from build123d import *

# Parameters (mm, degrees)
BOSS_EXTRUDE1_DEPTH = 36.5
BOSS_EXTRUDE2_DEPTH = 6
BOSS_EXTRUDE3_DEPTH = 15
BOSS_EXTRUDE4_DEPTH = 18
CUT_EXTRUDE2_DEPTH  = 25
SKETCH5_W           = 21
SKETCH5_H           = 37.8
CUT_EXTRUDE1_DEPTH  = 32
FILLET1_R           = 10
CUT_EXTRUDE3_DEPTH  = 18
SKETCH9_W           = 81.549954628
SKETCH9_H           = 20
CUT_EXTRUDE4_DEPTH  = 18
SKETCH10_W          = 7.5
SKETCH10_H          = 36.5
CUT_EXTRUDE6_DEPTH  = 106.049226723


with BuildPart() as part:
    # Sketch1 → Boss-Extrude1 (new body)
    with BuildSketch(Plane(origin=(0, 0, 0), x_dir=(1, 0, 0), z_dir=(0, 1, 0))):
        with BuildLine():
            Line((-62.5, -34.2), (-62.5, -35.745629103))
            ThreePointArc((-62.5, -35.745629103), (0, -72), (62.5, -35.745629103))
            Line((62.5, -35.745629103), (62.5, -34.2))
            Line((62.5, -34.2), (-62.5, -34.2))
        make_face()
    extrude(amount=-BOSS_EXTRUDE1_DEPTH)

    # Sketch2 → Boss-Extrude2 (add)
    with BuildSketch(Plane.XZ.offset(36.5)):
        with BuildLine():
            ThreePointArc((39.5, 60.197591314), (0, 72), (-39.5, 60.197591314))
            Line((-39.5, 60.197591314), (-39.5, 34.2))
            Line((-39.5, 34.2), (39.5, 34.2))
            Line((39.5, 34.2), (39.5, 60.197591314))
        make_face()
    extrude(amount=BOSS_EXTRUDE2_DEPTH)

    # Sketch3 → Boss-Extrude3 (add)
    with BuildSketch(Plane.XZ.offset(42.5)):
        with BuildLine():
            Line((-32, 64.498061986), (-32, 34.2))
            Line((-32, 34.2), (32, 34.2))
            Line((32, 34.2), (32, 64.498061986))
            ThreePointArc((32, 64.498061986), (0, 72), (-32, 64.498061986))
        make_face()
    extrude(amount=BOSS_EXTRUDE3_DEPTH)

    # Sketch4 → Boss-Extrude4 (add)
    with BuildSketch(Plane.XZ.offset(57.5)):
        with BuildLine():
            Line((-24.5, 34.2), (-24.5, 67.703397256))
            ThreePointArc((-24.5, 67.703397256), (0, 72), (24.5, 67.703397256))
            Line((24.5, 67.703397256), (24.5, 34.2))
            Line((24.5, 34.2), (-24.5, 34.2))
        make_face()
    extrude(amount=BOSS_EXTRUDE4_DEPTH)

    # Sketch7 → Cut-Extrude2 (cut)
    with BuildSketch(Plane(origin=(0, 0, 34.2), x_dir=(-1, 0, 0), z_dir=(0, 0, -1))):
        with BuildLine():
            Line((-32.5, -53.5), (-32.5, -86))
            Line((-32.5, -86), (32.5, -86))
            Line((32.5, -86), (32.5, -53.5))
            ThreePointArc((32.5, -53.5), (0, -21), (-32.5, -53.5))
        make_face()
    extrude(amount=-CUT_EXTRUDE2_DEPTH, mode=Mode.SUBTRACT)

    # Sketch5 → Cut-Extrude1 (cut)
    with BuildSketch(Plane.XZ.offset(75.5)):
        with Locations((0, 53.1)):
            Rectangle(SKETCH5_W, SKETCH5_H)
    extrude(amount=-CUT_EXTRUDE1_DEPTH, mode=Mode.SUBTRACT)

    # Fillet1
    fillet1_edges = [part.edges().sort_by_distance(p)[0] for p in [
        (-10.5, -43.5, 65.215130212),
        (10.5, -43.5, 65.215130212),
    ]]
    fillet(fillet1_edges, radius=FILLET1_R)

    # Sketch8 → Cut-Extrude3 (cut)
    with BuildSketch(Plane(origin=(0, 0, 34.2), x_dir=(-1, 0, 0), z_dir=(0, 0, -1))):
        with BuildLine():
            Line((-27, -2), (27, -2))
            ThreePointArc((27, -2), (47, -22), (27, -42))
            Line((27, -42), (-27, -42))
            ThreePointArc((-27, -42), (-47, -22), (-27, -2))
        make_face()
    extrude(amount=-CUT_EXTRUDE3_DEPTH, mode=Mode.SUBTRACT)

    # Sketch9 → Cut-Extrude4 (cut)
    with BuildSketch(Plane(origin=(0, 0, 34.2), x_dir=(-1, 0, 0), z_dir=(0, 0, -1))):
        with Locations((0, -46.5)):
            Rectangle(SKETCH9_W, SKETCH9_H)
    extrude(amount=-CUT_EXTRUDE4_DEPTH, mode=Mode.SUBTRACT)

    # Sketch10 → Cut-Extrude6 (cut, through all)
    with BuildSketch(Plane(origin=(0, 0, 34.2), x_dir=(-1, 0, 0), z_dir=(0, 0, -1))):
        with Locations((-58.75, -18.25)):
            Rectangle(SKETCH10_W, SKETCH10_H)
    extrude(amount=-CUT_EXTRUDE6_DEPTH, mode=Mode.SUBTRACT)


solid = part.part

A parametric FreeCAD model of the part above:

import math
import FreeCAD as App
import Part
import Sketcher


def edges_at(feature, points):
    """Names of the edges that pass closest to the given points."""
    edges = feature.Shape.Edges
    near = lambda p: min(range(len(edges)), key=lambda i: edges[i].distToShape(Part.Vertex(*p))[0])
    return sorted({f"Edge{near(p) + 1}" for p in points})


def add_polygon(sketch, points):
    """Adds a closed chain of lines whose ends are joined by coincident constraints."""
    first, n = sketch.GeometryCount, len(points)
    for a, b in zip(points, points[1:] + points[:1]):
        sketch.addGeometry(Part.LineSegment(App.Vector(*a, 0), App.Vector(*b, 0)), False)
    for i in range(n):
        sketch.addConstraint(Sketcher.Constraint("Coincident", first + i, 2, first + (i + 1) % n, 1))

doc = App.newDocument("Part")
params = doc.addObject("Spreadsheet::Sheet", "Params")
for row, (alias, value) in enumerate([
    ("sketch1_radius", "72 mm"),
    ("sketch1_width", "125 mm"),
    ("pad1_length", "36.5 mm"),
    ("sketch2_radius", "72 mm"),
    ("sketch2_width", "79 mm"),
    ("pad2_length", "6 mm"),
    ("sketch3_radius", "72 mm"),
    ("sketch3_width", "64 mm"),
    ("pad3_length", "15 mm"),
    ("sketch4_radius", "72 mm"),
    ("sketch4_width", "49 mm"),
    ("pad4_length", "18 mm"),
    ("sketch5_radius", "32.5 mm"),
    ("sketch5_height", "32.5 mm"),
    ("pocket1_length", "25 mm"),
    ("sketch6_width", "21 mm"),
    ("sketch6_height", "37.8 mm"),
    ("pocket2_length", "32 mm"),
    ("fillet_radius", "10 mm"),
    ("sketch7_radius", "20 mm"),
    ("sketch7_width", "54 mm"),
    ("pocket3_length", "18 mm"),
    ("sketch8_height", "20 mm"),
    ("pocket4_length", "18 mm"),
    ("sketch9_width", "7.5 mm"),
    ("sketch9_height", "36.5 mm"),
], start=1):
    params.set(f"A{row}", alias)
    params.set(f"B{row}", "=" + value)
    params.setAlias(f"B{row}", alias)

body = doc.addObject("PartDesign::Body", "Body")

# Sketch on XZ plane
sketch1 = body.newObject("Sketcher::SketchObject", "Sketch")
sketch1.AttachmentSupport = (doc.getObject("XZ_Plane"), [""])
sketch1.MapMode = "FlatFace"
sketch1.addGeometry(Part.LineSegment(App.Vector(-62.5, 34.2, 0), App.Vector(-62.5, 35.7, 0)), False)
sketch1.addGeometry(Part.ArcOfCircle(Part.Circle(App.Vector(0, 0, 0), App.Vector(0, 0, 1), 72), math.radians(30), math.radians(150)), False)
sketch1.addGeometry(Part.LineSegment(App.Vector(62.5, 35.7, 0), App.Vector(62.5, 34.2, 0)), False)
sketch1.addGeometry(Part.LineSegment(App.Vector(62.5, 34.2, 0), App.Vector(-62.5, 34.2, 0)), False)
sketch1.addConstraint(Sketcher.Constraint("Coincident", 0, 2, 1, 2))
sketch1.addConstraint(Sketcher.Constraint("Coincident", 1, 1, 2, 1))
sketch1.addConstraint(Sketcher.Constraint("Coincident", 2, 2, 3, 1))
sketch1.addConstraint(Sketcher.Constraint("Coincident", 3, 2, 0, 1))
sketch1.addConstraint(Sketcher.Constraint("Vertical", 0))
sketch1.addConstraint(Sketcher.Constraint("Vertical", 2))
sketch1.addConstraint(Sketcher.Constraint("Horizontal", 3))
sketch1.addConstraint(Sketcher.Constraint("Coincident", 1, 3, -1, 1))
sketch1.addConstraint(Sketcher.Constraint("Horizontal", 0, 2, 1, 1))
sketch1.addConstraint(Sketcher.Constraint("Radius", 1, 72.0))
sketch1.addConstraint(Sketcher.Constraint("DistanceX", 3, 2, 3, 1, 125.0))
sketch1.addConstraint(Sketcher.Constraint("DistanceY", -1, 1, 2, 2, 34.2))
sketch1.setExpression("Constraints[9]", "Params.sketch1_radius")
sketch1.setExpression("Constraints[10]", "Params.sketch1_width")
pad1 = body.newObject("PartDesign::Pad", "Pad")
pad1.Profile = sketch1
pad1.setExpression("Length", "Params.pad1_length")

# Sketch on XZ plane
sketch2 = body.newObject("Sketcher::SketchObject", "Sketch001")
sketch2.AttachmentSupport = (doc.getObject("XZ_Plane"), [""])
sketch2.MapMode = "FlatFace"
sketch2.AttachmentOffset = App.Placement(App.Vector(0, 0, 36.5), App.Rotation())
sketch2.addGeometry(Part.ArcOfCircle(Part.Circle(App.Vector(0, 0, 0), App.Vector(0, 0, 1), 72), math.radians(57), math.radians(123)), False)
sketch2.addGeometry(Part.LineSegment(App.Vector(-40, 60, 0), App.Vector(-40, 34, 0)), False)
sketch2.addGeometry(Part.LineSegment(App.Vector(-40, 34, 0), App.Vector(40, 34, 0)), False)
sketch2.addGeometry(Part.LineSegment(App.Vector(40, 34, 0), App.Vector(40, 60, 0)), False)
sketch2.addConstraint(Sketcher.Constraint("Coincident", 0, 2, 1, 1))
sketch2.addConstraint(Sketcher.Constraint("Coincident", 1, 2, 2, 1))
sketch2.addConstraint(Sketcher.Constraint("Coincident", 2, 2, 3, 1))
sketch2.addConstraint(Sketcher.Constraint("Coincident", 3, 2, 0, 1))
sketch2.addConstraint(Sketcher.Constraint("Vertical", 1))
sketch2.addConstraint(Sketcher.Constraint("Horizontal", 2))
sketch2.addConstraint(Sketcher.Constraint("Vertical", 3))
sketch2.addConstraint(Sketcher.Constraint("Coincident", 0, 3, -1, 1))
sketch2.addConstraint(Sketcher.Constraint("Horizontal", 0, 2, 3, 2))
sketch2.addConstraint(Sketcher.Constraint("Radius", 0, 72.0))
sketch2.addConstraint(Sketcher.Constraint("DistanceX", 2, 1, 2, 2, 79.0))
sketch2.addConstraint(Sketcher.Constraint("DistanceY", -1, 1, 1, 2, 34.2))
sketch2.setExpression("Constraints[9]", "Params.sketch2_radius")
sketch2.setExpression("Constraints[10]", "Params.sketch2_width")
pad2 = body.newObject("PartDesign::Pad", "Pad001")
pad2.Profile = sketch2
pad2.setExpression("Length", "Params.pad2_length")

# Sketch on XZ plane
sketch3 = body.newObject("Sketcher::SketchObject", "Sketch002")
sketch3.AttachmentSupport = (doc.getObject("XZ_Plane"), [""])
sketch3.MapMode = "FlatFace"
sketch3.AttachmentOffset = App.Placement(App.Vector(0, 0, 42.5), App.Rotation())
sketch3.addGeometry(Part.LineSegment(App.Vector(-32, 64, 0), App.Vector(-32, 34, 0)), False)
sketch3.addGeometry(Part.LineSegment(App.Vector(-32, 34, 0), App.Vector(32, 34, 0)), False)
sketch3.addGeometry(Part.LineSegment(App.Vector(32, 34, 0), App.Vector(32, 64, 0)), False)
sketch3.addGeometry(Part.ArcOfCircle(Part.Circle(App.Vector(0, 0, 0), App.Vector(0, 0, 1), 72), math.radians(64), math.radians(116)), False)
sketch3.addConstraint(Sketcher.Constraint("Coincident", 0, 2, 1, 1))
sketch3.addConstraint(Sketcher.Constraint("Coincident", 1, 2, 2, 1))
sketch3.addConstraint(Sketcher.Constraint("Coincident", 2, 2, 3, 1))
sketch3.addConstraint(Sketcher.Constraint("Coincident", 3, 2, 0, 1))
sketch3.addConstraint(Sketcher.Constraint("Vertical", 0))
sketch3.addConstraint(Sketcher.Constraint("Horizontal", 1))
sketch3.addConstraint(Sketcher.Constraint("Vertical", 2))
sketch3.addConstraint(Sketcher.Constraint("Coincident", 3, 3, -1, 1))
sketch3.addConstraint(Sketcher.Constraint("Horizontal", 2, 2, 3, 2))
sketch3.addConstraint(Sketcher.Constraint("Radius", 3, 72.0))
sketch3.addConstraint(Sketcher.Constraint("DistanceX", 1, 1, 1, 2, 64.0))
sketch3.addConstraint(Sketcher.Constraint("DistanceY", -1, 1, 0, 2, 34.2))
sketch3.setExpression("Constraints[9]", "Params.sketch3_radius")
sketch3.setExpression("Constraints[10]", "Params.sketch3_width")
pad3 = body.newObject("PartDesign::Pad", "Pad002")
pad3.Profile = sketch3
pad3.setExpression("Length", "Params.pad3_length")

# Sketch on XZ plane
sketch4 = body.newObject("Sketcher::SketchObject", "Sketch003")
sketch4.AttachmentSupport = (doc.getObject("XZ_Plane"), [""])
sketch4.MapMode = "FlatFace"
sketch4.AttachmentOffset = App.Placement(App.Vector(0, 0, 57.5), App.Rotation())
sketch4.addGeometry(Part.LineSegment(App.Vector(-24, 68, 0), App.Vector(-24, 34, 0)), False)
sketch4.addGeometry(Part.LineSegment(App.Vector(-24, 34, 0), App.Vector(24, 34, 0)), False)
sketch4.addGeometry(Part.LineSegment(App.Vector(24, 34, 0), App.Vector(24, 68, 0)), False)
sketch4.addGeometry(Part.ArcOfCircle(Part.Circle(App.Vector(0, 0, 0), App.Vector(0, 0, 1), 72), math.radians(70), math.radians(110)), False)
sketch4.addConstraint(Sketcher.Constraint("Coincident", 0, 2, 1, 1))
sketch4.addConstraint(Sketcher.Constraint("Coincident", 1, 2, 2, 1))
sketch4.addConstraint(Sketcher.Constraint("Coincident", 2, 2, 3, 1))
sketch4.addConstraint(Sketcher.Constraint("Coincident", 3, 2, 0, 1))
sketch4.addConstraint(Sketcher.Constraint("Vertical", 0))
sketch4.addConstraint(Sketcher.Constraint("Horizontal", 1))
sketch4.addConstraint(Sketcher.Constraint("Vertical", 2))
sketch4.addConstraint(Sketcher.Constraint("Coincident", 3, 3, -1, 1))
sketch4.addConstraint(Sketcher.Constraint("Horizontal", 2, 2, 3, 2))
sketch4.addConstraint(Sketcher.Constraint("Radius", 3, 72.0))
sketch4.addConstraint(Sketcher.Constraint("DistanceX", 1, 1, 1, 2, 49.0))
sketch4.addConstraint(Sketcher.Constraint("DistanceY", -1, 1, 0, 2, 34.2))
sketch4.setExpression("Constraints[9]", "Params.sketch4_radius")
sketch4.setExpression("Constraints[10]", "Params.sketch4_width")
pad4 = body.newObject("PartDesign::Pad", "Pad003")
pad4.Profile = sketch4
pad4.setExpression("Length", "Params.pad4_length")

# Sketch on XY plane
sketch5 = body.newObject("Sketcher::SketchObject", "Sketch004")
sketch5.AttachmentSupport = (doc.getObject("XY_Plane"), [""])
sketch5.MapMode = "FlatFace"
sketch5.AttachmentOffset = App.Placement(App.Vector(0, 0, 34.2), App.Rotation())
sketch5.addGeometry(Part.LineSegment(App.Vector(32, -54, 0), App.Vector(32, -86, 0)), False)
sketch5.addGeometry(Part.LineSegment(App.Vector(32, -86, 0), App.Vector(-32, -86, 0)), False)
sketch5.addGeometry(Part.LineSegment(App.Vector(-32, -86, 0), App.Vector(-32, -54, 0)), False)
sketch5.addGeometry(Part.ArcOfCircle(Part.Circle(App.Vector(0, -54, 0), App.Vector(0, 0, 1), 32), math.radians(0), math.radians(180)), False)
sketch5.addConstraint(Sketcher.Constraint("Coincident", 0, 2, 1, 1))
sketch5.addConstraint(Sketcher.Constraint("Coincident", 1, 2, 2, 1))
sketch5.addConstraint(Sketcher.Constraint("Tangent", 2, 2, 3, 2))
sketch5.addConstraint(Sketcher.Constraint("Tangent", 3, 1, 0, 1))
sketch5.addConstraint(Sketcher.Constraint("Vertical", 0))
sketch5.addConstraint(Sketcher.Constraint("Horizontal", 1))
sketch5.addConstraint(Sketcher.Constraint("Vertical", 2))
sketch5.addConstraint(Sketcher.Constraint("PointOnObject", 3, 3, -2))
sketch5.addConstraint(Sketcher.Constraint("Radius", 3, 32.5))
sketch5.addConstraint(Sketcher.Constraint("DistanceY", 0, 2, 0, 1, 32.5))
sketch5.addConstraint(Sketcher.Constraint("DistanceY", 0, 2, -1, 1, 86.0))
sketch5.setExpression("Constraints[8]", "Params.sketch5_radius")
sketch5.setExpression("Constraints[9]", "Params.sketch5_height")
pocket1 = body.newObject("PartDesign::Pocket", "Pocket")
pocket1.Profile = sketch5
pocket1.setExpression("Length", "Params.pocket1_length")
pocket1.Reversed = True

# Sketch on XZ plane
sketch6 = body.newObject("Sketcher::SketchObject", "Sketch005")
sketch6.AttachmentSupport = (doc.getObject("XZ_Plane"), [""])
sketch6.MapMode = "FlatFace"
sketch6.AttachmentOffset = App.Placement(App.Vector(0, 0, 75.5), App.Rotation())
add_polygon(sketch6, [(-10, 72), (-10, 34), (10, 34), (10, 72)])  # lines 0-3
sketch6.addConstraint(Sketcher.Constraint("Vertical", 0))
sketch6.addConstraint(Sketcher.Constraint("Horizontal", 1))
sketch6.addConstraint(Sketcher.Constraint("Vertical", 2))
sketch6.addConstraint(Sketcher.Constraint("Horizontal", 3))
sketch6.addConstraint(Sketcher.Constraint("DistanceX", 1, 1, 1, 2, 21.0))
sketch6.addConstraint(Sketcher.Constraint("DistanceY", 0, 2, 0, 1, 37.8))
sketch6.addConstraint(Sketcher.Constraint("DistanceY", -1, 1, 2, 2, 72.0))
sketch6.addConstraint(Sketcher.Constraint("DistanceX", 0, 2, -1, 1, 10.5))
sketch6.setExpression("Constraints[8]", "Params.sketch6_width")
sketch6.setExpression("Constraints[9]", "Params.sketch6_height")
pocket2 = body.newObject("PartDesign::Pocket", "Pocket001")
pocket2.Profile = sketch6
pocket2.setExpression("Length", "Params.pocket2_length")
doc.recompute()

fillet = body.newObject("PartDesign::Fillet", "Fillet")
fillet.Base = (pocket2, edges_at(pocket2, [(-10.5, -43.5, 65.215), (10.5, -43.5, 65.215)]))
fillet.setExpression("Radius", "Params.fillet_radius")

# Sketch on XY plane
sketch7 = body.newObject("Sketcher::SketchObject", "Sketch006")
sketch7.AttachmentSupport = (doc.getObject("XY_Plane"), [""])
sketch7.MapMode = "FlatFace"
sketch7.AttachmentOffset = App.Placement(App.Vector(0, 0, 34.2), App.Rotation())
sketch7.addGeometry(Part.LineSegment(App.Vector(-27, -2, 0), App.Vector(27, -2, 0)), False)
sketch7.addGeometry(Part.ArcOfCircle(Part.Circle(App.Vector(27, -22, 0), App.Vector(0, 0, 1), 20), math.radians(-90), math.radians(90)), False)
sketch7.addGeometry(Part.LineSegment(App.Vector(27, -42, 0), App.Vector(-27, -42, 0)), False)
sketch7.addGeometry(Part.ArcOfCircle(Part.Circle(App.Vector(-27, -22, 0), App.Vector(0, 0, 1), 20), math.radians(90), math.radians(270)), False)
sketch7.addConstraint(Sketcher.Constraint("Tangent", 0, 2, 1, 2))
sketch7.addConstraint(Sketcher.Constraint("Tangent", 1, 1, 2, 1))
sketch7.addConstraint(Sketcher.Constraint("Tangent", 2, 2, 3, 2))
sketch7.addConstraint(Sketcher.Constraint("Tangent", 3, 1, 0, 1))
sketch7.addConstraint(Sketcher.Constraint("Horizontal", 0))
sketch7.addConstraint(Sketcher.Constraint("Horizontal", 2))
sketch7.addConstraint(Sketcher.Constraint("Radius", 1, 20.0))
sketch7.addConstraint(Sketcher.Constraint("DistanceX", 0, 1, 0, 2, 54.0))
sketch7.addConstraint(Sketcher.Constraint("DistanceX", -1, 1, 1, 3, 27.0))
sketch7.addConstraint(Sketcher.Constraint("DistanceY", 1, 3, -1, 1, 22.0))
sketch7.setExpression("Constraints[6]", "Params.sketch7_radius")
sketch7.setExpression("Constraints[7]", "Params.sketch7_width")
pocket3 = body.newObject("PartDesign::Pocket", "Pocket002")
pocket3.Profile = sketch7
pocket3.setExpression("Length", "Params.pocket3_length")
pocket3.Reversed = True

# Sketch on XY plane
sketch8 = body.newObject("Sketcher::SketchObject", "Sketch007")
sketch8.AttachmentSupport = (doc.getObject("XY_Plane"), [""])
sketch8.MapMode = "FlatFace"
sketch8.AttachmentOffset = App.Placement(App.Vector(0, 0, 34.2), App.Rotation())
add_polygon(sketch8, [(41, -36), (41, -56), (-41, -56), (-41, -36)])  # lines 0-3
sketch8.addConstraint(Sketcher.Constraint("Vertical", 0))
sketch8.addConstraint(Sketcher.Constraint("Horizontal", 1))
sketch8.addConstraint(Sketcher.Constraint("Vertical", 2))
sketch8.addConstraint(Sketcher.Constraint("Horizontal", 3))
sketch8.addConstraint(Sketcher.Constraint("DistanceY", 0, 2, 0, 1, 20.0))
sketch8.addConstraint(Sketcher.Constraint("DistanceY", 0, 2, -1, 1, 56.5))
sketch8.addConstraint(Sketcher.Constraint("DistanceX", 1, 2, 1, 1, 81.549955))
sketch8.addConstraint(Sketcher.Constraint("DistanceX", -1, 1, 0, 2, 40.774977))
sketch8.setExpression("Constraints[8]", "Params.sketch8_height")
pocket4 = body.newObject("PartDesign::Pocket", "Pocket003")
pocket4.Profile = sketch8
pocket4.setExpression("Length", "Params.pocket4_length")
pocket4.Reversed = True

# Sketch on XY plane
sketch9 = body.newObject("Sketcher::SketchObject", "Sketch008")
sketch9.AttachmentSupport = (doc.getObject("XY_Plane"), [""])
sketch9.MapMode = "FlatFace"
sketch9.AttachmentOffset = App.Placement(App.Vector(0, 0, 34.2), App.Rotation())
add_polygon(sketch9, [(62, 0), (62, -36), (55, -36), (55, 0)])  # lines 0-3
sketch9.addConstraint(Sketcher.Constraint("Vertical", 0))
sketch9.addConstraint(Sketcher.Constraint("Horizontal", 1))
sketch9.addConstraint(Sketcher.Constraint("Vertical", 2))
sketch9.addConstraint(Sketcher.Constraint("Horizontal", 3))
sketch9.addConstraint(Sketcher.Constraint("PointOnObject", 2, 2, -1))
sketch9.addConstraint(Sketcher.Constraint("DistanceX", 1, 2, 1, 1, 7.5))
sketch9.addConstraint(Sketcher.Constraint("DistanceY", 0, 2, 0, 1, 36.5))
sketch9.addConstraint(Sketcher.Constraint("DistanceX", -1, 1, 1, 2, 55.0))
sketch9.setExpression("Constraints[9]", "Params.sketch9_width")
sketch9.setExpression("Constraints[10]", "Params.sketch9_height")
pocket5 = body.newObject("PartDesign::Pocket", "Pocket004")
pocket5.Profile = sketch9
pocket5.Type = "ThroughAll"
pocket5.Reversed = True

doc.recompute()
